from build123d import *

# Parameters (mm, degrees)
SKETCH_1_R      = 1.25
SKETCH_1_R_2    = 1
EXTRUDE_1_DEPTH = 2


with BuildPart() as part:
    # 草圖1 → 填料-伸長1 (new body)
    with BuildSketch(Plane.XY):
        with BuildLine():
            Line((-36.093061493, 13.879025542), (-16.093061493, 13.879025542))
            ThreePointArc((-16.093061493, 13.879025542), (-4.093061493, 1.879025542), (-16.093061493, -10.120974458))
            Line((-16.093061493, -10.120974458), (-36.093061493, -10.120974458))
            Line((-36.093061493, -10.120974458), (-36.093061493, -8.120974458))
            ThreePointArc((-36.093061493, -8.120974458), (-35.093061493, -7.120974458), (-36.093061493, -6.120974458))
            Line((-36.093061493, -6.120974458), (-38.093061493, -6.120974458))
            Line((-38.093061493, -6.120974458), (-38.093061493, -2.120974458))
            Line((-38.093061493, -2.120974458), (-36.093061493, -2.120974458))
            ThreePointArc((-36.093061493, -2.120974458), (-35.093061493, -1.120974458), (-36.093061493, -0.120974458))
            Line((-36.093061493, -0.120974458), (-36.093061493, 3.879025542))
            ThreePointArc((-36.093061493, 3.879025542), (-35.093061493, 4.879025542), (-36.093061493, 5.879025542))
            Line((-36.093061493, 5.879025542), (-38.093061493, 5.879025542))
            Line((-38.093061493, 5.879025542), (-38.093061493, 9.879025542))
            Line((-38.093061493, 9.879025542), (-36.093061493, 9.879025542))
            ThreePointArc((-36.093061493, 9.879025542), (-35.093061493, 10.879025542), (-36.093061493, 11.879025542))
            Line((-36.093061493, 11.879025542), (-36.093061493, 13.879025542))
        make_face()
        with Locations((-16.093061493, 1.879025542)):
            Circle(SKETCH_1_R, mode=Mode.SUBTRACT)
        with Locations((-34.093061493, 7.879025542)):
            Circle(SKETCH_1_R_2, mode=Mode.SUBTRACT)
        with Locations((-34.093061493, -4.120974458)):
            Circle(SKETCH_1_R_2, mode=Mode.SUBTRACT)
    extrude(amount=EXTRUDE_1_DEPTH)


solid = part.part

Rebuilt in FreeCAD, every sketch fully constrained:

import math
import FreeCAD as App
import Part
import Sketcher

doc = App.newDocument("Part")
body = doc.addObject("PartDesign::Body", "Body")

# Sketch on XY plane
sketch1 = doc.addObject("Sketcher::SketchObject", "Sketch")
body.addObject(sketch1)
sketch1.AttachmentSupport = (doc.XY_Plane, [""])
sketch1.MapMode = "FlatFace"
sketch1.addGeometry([
    Part.LineSegment(App.Vector(-16.1, 13.9, 0), App.Vector(-36.1, 13.9, 0)),  # 0
    Part.LineSegment(App.Vector(-36.1, 13.9, 0), App.Vector(-36.1, 11.9, 0)),  # 1
    Part.ArcOfCircle(Part.Circle(App.Vector(-36.1, 10.9, 0), App.Vector(0, 0, 1), 1), math.radians(-90), math.radians(90)),  # 2
    Part.LineSegment(App.Vector(-36.1, 9.9, 0), App.Vector(-38.1, 9.9, 0)),  # 3
    Part.LineSegment(App.Vector(-38.1, 9.9, 0), App.Vector(-38.1, 5.9, 0)),  # 4
    Part.LineSegment(App.Vector(-38.1, 5.9, 0), App.Vector(-36.1, 5.9, 0)),  # 5
    Part.ArcOfCircle(Part.Circle(App.Vector(-36.1, 4.9, 0), App.Vector(0, 0, 1), 1), math.radians(-90), math.radians(90)),  # 6
    Part.LineSegment(App.Vector(-36.1, 3.9, 0), App.Vector(-36.1, -0.1, 0)),  # 7
    Part.ArcOfCircle(Part.Circle(App.Vector(-36.1, -1.1, 0), App.Vector(0, 0, 1), 1), math.radians(-90), math.radians(90)),  # 8
    Part.LineSegment(App.Vector(-36.1, -2.1, 0), App.Vector(-38.1, -2.1, 0)),  # 9
    Part.LineSegment(App.Vector(-38.1, -2.1, 0), App.Vector(-38.1, -6.1, 0)),  # 10
    Part.LineSegment(App.Vector(-38.1, -6.1, 0), App.Vector(-36.1, -6.1, 0)),  # 11
    Part.ArcOfCircle(Part.Circle(App.Vector(-36.1, -7.1, 0), App.Vector(0, 0, 1), 1), math.radians(-90), math.radians(90)),  # 12
    Part.LineSegment(App.Vector(-36.1, -8.1, 0), App.Vector(-36.1, -10.1, 0)),  # 13
    Part.LineSegment(App.Vector(-36.1, -10.1, 0), App.Vector(-16.1, -10.1, 0)),  # 14
    Part.ArcOfCircle(Part.Circle(App.Vector(-16.1, 1.9, 0), App.Vector(0, 0, 1), 12), math.radians(-90), math.radians(90)),  # 15
    Part.Circle(App.Vector(-34.1, -4.1, 0), App.Vector(0, 0, 1), 1),  # 16
    Part.Circle(App.Vector(-16.1, 1.9, 0), App.Vector(0, 0, 1), 1.2),  # 17
    Part.Circle(App.Vector(-34.1, 7.9, 0), App.Vector(0, 0, 1), 1),  # 18
], False)
sketch1.addConstraint([
    Sketcher.Constraint("Coincident", 0, 2, 1, 1),
    Sketcher.Constraint("Coincident", 1, 2, 2, 2),
    Sketcher.Constraint("Tangent", 2, 1, 3, 1),
    Sketcher.Constraint("Coincident", 3, 2, 4, 1),
    Sketcher.Constraint("Coincident", 4, 2, 5, 1),
    Sketcher.Constraint("Tangent", 5, 2, 6, 2),
    Sketcher.Constraint("Coincident", 6, 1, 7, 1),
    Sketcher.Constraint("Coincident", 7, 2, 8, 2),
    Sketcher.Constraint("Tangent", 8, 1, 9, 1),
    Sketcher.Constraint("Coincident", 9, 2, 10, 1),
    Sketcher.Constraint("Coincident", 10, 2, 11, 1),
    Sketcher.Constraint("Tangent", 11, 2, 12, 2),
    Sketcher.Constraint("Coincident", 12, 1, 13, 1),
    Sketcher.Constraint("Coincident", 13, 2, 14, 1),
    Sketcher.Constraint("Tangent", 14, 2, 15, 1),
    Sketcher.Constraint("Tangent", 15, 2, 0, 1),
    Sketcher.Constraint("Horizontal", 0),
    Sketcher.Constraint("Vertical", 1),
    Sketcher.Constraint("Horizontal", 3),
    Sketcher.Constraint("Vertical", 4),
    Sketcher.Constraint("Horizontal", 5),
    Sketcher.Constraint("Vertical", 7),
    Sketcher.Constraint("Horizontal", 9),
    Sketcher.Constraint("Vertical", 10),
    Sketcher.Constraint("Horizontal", 11),
    Sketcher.Constraint("Vertical", 13),
    Sketcher.Constraint("Horizontal", 14),
    Sketcher.Constraint("Coincident", 17, 3, 15, 3),
    Sketcher.Constraint("Equal", 2, 6),
    Sketcher.Constraint("Equal", 6, 8),
    Sketcher.Constraint("Equal", 8, 12),
    Sketcher.Constraint("Equal", 12, 16),
    Sketcher.Constraint("Equal", 16, 18),
    Sketcher.Constraint("Vertical", 2, 3, 6, 3),
    Sketcher.Constraint("Vertical", 6, 3, 8, 3),
    Sketcher.Constraint("Vertical", 8, 3, 12, 3),
    Sketcher.Constraint("Vertical", 16, 3, 18, 3),
    Sketcher.Constraint("Vertical", 12, 3, 0, 2),
    Sketcher.Constraint("Vertical", 5, 2, 6, 1),
    Sketcher.Constraint("Vertical", 4, 2, 9, 2),
    Sketcher.Constraint("Vertical", 11, 2, 12, 1),
    Sketcher.Constraint("Equal", 11, 1),
    Sketcher.Constraint("Equal", 4, 7),
    Sketcher.Constraint("Equal", 7, 10),
    Sketcher.Constraint("Equal", 1, 13),
    Sketcher.Constraint("Diameter", 16, 2.0),
    Sketcher.Constraint("Radius", 15, 12.0),
    Sketcher.Constraint("Diameter", 17, 2.5),
    Sketcher.Constraint("DistanceX", 0, 2, 0, 1, 20.0),
    Sketcher.Constraint("DistanceX", 3, 2, 3, 1, 2.0),
    Sketcher.Constraint("DistanceX", 8, 3, 16, 3, 2.0),
    Sketcher.Constraint("DistanceY", 16, 3, 8, 3, 3.0),
    Sketcher.Constraint("DistanceY", 6, 3, 18, 3, 3.0),
    Sketcher.Constraint("DistanceX", 2, 3, -1, 1, 36.093061),
    Sketcher.Constraint("DistanceY", -1, 1, 2, 3, 10.879026),
])
pad1 = doc.addObject("PartDesign::Pad", "Pad")
body.addObject(pad1)
pad1.Profile = sketch1
pad1.Length = 2

doc.recompute()
